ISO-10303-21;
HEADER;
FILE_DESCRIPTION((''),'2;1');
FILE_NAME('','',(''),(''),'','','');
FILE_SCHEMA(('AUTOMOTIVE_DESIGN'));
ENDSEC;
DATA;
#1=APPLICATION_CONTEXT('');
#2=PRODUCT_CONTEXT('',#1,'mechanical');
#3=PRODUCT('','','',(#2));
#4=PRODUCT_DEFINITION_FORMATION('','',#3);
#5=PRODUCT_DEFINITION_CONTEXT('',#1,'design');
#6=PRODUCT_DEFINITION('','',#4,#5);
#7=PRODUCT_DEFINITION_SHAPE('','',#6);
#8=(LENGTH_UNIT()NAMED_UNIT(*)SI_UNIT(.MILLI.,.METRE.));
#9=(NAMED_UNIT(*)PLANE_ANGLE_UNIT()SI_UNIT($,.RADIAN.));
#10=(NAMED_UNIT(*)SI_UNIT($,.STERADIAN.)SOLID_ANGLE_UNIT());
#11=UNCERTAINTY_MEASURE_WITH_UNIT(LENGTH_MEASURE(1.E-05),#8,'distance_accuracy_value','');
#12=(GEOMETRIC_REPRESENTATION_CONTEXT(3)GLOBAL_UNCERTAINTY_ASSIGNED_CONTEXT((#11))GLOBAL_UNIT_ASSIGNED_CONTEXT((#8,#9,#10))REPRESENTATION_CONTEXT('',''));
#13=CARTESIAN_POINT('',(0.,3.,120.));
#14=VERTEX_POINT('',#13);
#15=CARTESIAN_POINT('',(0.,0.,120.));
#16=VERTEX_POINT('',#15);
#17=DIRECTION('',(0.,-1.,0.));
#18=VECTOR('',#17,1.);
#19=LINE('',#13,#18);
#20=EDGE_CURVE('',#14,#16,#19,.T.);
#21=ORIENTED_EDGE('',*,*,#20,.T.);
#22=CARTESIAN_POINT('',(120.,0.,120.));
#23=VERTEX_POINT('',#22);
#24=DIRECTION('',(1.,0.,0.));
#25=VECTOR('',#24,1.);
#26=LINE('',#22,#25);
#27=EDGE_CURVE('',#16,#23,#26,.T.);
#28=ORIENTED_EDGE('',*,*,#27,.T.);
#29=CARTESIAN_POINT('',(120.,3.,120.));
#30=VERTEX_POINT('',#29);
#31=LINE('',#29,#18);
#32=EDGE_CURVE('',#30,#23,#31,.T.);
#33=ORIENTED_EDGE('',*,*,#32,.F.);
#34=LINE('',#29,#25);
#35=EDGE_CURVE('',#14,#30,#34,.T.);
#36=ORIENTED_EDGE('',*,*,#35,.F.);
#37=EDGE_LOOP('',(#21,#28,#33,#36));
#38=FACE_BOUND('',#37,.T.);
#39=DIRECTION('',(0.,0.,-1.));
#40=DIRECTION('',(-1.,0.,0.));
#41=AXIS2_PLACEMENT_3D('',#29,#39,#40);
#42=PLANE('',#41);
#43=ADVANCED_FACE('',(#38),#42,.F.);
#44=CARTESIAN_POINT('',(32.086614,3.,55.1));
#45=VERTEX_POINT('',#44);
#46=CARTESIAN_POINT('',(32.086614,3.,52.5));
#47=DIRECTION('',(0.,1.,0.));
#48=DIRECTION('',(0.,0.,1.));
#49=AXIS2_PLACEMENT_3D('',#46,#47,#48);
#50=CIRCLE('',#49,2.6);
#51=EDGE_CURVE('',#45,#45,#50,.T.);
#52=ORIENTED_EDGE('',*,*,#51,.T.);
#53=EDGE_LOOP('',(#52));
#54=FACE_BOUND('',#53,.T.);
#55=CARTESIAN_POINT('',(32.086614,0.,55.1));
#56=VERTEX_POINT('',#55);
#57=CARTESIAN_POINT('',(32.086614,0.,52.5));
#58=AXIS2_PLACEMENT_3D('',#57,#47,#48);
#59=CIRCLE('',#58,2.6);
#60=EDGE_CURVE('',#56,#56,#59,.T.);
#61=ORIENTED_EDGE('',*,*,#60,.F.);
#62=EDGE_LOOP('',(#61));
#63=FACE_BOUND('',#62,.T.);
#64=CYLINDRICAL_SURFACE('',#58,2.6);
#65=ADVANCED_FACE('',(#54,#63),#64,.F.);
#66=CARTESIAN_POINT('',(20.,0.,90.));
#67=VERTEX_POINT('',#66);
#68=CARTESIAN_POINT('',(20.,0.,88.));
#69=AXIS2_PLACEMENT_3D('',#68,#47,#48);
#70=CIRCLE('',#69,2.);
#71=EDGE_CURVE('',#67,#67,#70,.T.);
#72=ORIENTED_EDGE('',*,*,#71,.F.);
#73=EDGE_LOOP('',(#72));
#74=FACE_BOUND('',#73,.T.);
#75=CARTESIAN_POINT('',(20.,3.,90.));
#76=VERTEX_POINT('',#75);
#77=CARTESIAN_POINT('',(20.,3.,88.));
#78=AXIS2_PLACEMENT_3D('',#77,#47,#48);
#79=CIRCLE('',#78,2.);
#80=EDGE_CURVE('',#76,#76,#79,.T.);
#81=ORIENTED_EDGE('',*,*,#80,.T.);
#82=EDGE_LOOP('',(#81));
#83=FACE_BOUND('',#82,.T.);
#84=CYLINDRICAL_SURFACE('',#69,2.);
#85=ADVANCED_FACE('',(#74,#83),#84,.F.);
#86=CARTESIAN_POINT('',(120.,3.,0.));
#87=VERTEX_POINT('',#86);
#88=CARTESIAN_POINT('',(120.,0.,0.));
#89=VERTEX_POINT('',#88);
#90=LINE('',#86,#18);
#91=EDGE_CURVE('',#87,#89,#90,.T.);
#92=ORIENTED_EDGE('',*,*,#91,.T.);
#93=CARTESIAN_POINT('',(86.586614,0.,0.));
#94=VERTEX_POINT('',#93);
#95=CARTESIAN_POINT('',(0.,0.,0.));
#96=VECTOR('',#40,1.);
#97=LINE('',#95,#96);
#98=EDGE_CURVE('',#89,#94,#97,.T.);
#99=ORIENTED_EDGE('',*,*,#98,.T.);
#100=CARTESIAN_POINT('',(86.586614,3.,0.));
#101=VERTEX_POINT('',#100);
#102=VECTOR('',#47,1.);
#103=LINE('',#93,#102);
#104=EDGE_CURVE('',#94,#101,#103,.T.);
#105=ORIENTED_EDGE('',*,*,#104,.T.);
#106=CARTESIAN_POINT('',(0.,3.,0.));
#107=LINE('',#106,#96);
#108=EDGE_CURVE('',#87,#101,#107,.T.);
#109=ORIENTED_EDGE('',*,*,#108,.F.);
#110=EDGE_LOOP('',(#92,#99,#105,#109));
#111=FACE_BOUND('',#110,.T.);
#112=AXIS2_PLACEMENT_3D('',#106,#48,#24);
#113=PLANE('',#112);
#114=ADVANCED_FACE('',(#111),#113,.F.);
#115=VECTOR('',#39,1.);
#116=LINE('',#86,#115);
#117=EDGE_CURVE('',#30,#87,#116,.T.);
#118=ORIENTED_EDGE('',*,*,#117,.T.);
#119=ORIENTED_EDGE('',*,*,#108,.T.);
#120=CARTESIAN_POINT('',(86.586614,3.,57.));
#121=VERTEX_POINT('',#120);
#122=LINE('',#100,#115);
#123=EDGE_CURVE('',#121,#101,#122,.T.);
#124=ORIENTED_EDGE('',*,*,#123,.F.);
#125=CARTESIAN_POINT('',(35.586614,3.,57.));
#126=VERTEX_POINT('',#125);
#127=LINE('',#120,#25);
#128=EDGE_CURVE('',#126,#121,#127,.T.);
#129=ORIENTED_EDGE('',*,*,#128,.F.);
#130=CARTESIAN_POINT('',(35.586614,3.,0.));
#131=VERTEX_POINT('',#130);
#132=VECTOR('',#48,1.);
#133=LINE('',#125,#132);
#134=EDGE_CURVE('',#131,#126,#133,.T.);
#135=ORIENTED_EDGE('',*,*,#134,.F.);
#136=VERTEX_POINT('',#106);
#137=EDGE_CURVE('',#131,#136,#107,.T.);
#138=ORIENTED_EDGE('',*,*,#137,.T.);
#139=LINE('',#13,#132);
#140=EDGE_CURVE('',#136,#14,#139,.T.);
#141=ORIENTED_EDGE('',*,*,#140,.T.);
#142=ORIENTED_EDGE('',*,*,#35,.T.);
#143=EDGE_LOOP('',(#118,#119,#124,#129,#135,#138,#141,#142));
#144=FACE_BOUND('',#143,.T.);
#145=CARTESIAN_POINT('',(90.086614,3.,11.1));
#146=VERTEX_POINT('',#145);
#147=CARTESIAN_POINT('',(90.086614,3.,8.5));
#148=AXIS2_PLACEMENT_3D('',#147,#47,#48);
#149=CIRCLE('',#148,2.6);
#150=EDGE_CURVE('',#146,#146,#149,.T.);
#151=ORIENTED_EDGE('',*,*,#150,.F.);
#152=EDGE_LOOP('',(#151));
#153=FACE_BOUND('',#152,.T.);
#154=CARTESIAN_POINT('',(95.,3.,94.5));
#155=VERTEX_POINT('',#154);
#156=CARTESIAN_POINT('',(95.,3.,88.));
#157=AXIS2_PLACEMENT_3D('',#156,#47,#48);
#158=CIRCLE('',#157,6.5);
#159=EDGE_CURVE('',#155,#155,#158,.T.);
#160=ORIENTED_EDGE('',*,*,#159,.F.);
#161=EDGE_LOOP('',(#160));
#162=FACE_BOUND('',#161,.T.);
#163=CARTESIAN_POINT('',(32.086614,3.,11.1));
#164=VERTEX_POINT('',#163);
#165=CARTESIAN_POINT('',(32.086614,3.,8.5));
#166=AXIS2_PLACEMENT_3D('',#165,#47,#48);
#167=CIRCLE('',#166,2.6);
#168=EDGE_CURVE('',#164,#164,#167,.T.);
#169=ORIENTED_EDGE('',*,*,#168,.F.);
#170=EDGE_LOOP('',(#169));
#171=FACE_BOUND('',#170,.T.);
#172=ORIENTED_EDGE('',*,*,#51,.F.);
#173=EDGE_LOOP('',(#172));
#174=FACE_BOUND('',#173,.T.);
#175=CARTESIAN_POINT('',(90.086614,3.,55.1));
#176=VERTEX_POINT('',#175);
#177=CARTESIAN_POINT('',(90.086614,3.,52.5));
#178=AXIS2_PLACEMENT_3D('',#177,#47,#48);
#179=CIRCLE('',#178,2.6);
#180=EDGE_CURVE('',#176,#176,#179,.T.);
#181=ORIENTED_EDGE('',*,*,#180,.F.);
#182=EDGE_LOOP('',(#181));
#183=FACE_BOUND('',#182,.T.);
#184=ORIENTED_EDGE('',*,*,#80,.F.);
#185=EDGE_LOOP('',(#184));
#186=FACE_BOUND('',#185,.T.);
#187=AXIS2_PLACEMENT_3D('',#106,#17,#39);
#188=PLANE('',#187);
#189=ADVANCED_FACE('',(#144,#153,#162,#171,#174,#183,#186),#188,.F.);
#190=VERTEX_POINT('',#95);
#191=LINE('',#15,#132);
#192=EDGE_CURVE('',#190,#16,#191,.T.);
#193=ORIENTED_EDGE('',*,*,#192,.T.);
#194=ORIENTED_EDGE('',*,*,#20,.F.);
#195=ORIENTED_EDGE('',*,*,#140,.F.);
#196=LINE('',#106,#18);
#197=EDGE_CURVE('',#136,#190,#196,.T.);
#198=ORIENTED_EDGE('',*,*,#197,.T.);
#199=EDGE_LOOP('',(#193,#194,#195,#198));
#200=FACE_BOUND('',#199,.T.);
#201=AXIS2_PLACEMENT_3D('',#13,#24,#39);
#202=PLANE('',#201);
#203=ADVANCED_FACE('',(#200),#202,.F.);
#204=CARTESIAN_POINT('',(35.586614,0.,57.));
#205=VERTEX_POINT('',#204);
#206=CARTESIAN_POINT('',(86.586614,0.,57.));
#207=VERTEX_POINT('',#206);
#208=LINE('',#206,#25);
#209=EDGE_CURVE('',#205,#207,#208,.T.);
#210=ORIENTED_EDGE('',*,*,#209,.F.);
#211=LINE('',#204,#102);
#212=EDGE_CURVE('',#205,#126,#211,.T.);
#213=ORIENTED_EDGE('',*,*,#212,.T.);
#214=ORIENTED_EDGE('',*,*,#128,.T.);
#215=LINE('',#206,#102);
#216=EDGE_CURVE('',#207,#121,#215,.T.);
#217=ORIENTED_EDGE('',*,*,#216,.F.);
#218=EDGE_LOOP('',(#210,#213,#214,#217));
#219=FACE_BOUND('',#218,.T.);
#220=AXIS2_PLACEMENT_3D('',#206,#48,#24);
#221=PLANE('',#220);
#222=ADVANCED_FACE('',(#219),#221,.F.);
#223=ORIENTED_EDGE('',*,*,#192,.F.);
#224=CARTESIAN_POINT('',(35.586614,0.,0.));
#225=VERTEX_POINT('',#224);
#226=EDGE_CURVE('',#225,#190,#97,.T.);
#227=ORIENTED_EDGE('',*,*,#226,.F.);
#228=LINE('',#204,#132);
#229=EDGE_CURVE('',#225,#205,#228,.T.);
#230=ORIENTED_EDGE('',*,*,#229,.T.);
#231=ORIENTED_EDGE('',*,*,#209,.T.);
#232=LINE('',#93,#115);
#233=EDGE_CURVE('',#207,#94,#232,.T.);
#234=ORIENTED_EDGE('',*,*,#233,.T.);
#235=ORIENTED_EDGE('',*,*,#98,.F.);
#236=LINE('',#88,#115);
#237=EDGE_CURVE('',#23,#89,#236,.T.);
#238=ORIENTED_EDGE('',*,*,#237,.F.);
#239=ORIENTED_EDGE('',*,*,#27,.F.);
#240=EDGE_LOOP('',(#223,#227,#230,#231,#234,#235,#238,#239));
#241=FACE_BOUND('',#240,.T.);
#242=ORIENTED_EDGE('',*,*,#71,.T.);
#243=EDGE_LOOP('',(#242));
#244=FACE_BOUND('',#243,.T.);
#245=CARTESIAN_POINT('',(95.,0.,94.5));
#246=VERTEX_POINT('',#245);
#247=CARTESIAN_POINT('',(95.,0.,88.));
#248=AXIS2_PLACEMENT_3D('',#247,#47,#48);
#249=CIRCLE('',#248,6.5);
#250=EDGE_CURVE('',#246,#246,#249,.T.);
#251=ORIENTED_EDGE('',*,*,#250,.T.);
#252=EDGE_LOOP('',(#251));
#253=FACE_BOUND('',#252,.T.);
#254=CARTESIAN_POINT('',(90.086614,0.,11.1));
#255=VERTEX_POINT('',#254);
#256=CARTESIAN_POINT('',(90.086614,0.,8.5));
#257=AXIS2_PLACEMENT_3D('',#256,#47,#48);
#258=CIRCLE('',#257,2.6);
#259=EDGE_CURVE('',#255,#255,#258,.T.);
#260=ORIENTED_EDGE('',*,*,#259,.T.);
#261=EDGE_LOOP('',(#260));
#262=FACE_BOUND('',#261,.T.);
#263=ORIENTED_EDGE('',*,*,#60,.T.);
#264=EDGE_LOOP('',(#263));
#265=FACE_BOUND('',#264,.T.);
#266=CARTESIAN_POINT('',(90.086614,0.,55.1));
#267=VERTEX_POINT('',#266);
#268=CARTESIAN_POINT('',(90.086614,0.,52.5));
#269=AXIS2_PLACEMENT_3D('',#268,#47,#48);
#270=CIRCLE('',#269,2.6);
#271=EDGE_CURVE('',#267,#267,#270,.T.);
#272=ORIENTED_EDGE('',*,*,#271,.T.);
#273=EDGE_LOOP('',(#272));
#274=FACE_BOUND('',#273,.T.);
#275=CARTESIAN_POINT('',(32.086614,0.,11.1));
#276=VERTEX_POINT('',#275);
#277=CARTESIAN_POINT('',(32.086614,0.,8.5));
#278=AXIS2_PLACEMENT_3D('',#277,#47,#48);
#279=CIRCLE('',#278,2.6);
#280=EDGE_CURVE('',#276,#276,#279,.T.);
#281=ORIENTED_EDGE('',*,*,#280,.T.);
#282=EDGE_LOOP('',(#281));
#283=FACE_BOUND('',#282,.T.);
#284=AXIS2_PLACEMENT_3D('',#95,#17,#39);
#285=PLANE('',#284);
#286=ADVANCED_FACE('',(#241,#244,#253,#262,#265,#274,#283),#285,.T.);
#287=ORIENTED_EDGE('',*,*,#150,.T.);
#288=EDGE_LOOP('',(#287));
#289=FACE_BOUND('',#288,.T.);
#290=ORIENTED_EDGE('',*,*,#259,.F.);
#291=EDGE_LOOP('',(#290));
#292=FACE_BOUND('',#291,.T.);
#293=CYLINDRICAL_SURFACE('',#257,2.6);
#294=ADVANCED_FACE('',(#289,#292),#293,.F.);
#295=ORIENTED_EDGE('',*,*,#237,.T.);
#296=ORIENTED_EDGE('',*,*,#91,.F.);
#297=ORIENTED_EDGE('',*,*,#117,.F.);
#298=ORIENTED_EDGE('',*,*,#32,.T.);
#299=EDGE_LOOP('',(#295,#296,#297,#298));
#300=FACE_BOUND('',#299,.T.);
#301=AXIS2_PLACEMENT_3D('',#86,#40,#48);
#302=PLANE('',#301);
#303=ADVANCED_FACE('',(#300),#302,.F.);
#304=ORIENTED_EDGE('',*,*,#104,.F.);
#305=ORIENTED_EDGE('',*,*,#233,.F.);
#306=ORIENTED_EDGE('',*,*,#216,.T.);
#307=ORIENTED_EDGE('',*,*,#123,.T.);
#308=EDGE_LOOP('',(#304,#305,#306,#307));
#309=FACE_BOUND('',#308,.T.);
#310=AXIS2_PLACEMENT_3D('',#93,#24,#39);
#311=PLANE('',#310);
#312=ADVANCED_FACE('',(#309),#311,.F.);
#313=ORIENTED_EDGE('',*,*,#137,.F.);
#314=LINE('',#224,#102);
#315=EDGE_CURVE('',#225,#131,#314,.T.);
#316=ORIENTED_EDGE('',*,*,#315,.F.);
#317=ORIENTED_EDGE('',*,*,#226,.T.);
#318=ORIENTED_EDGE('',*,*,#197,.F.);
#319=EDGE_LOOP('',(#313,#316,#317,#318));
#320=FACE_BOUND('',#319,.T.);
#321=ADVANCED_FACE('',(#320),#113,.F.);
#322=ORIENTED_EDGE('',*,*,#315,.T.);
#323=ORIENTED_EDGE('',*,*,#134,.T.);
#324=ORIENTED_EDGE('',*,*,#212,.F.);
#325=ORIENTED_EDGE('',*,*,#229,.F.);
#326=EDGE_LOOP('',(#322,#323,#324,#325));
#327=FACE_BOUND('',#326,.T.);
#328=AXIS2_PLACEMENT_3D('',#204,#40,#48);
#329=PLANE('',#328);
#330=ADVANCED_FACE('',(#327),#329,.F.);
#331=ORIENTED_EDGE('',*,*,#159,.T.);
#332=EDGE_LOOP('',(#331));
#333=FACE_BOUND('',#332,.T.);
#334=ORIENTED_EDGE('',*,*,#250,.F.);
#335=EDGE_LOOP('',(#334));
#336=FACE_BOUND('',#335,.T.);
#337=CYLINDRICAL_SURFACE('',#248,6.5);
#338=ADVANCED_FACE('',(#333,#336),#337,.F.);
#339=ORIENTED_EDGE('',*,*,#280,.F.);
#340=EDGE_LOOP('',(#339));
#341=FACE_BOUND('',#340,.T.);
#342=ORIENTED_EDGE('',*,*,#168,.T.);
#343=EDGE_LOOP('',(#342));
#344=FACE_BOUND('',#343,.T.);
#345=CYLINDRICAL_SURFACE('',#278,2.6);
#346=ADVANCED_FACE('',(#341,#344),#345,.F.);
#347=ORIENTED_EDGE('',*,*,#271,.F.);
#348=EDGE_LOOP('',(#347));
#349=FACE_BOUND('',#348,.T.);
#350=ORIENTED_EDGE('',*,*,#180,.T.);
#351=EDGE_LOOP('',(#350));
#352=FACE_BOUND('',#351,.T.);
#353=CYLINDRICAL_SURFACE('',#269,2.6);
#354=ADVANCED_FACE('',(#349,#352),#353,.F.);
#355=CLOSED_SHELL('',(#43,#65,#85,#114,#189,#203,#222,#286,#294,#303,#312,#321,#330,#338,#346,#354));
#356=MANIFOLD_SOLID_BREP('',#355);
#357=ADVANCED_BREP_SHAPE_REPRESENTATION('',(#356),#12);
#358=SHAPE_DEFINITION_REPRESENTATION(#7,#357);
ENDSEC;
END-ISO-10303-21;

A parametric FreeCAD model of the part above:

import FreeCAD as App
import Part
import Sketcher

V = App.Vector

doc = App.newDocument("Part")
body = doc.addObject("PartDesign::Body", "Body")

# Sketch on XZ plane
sketch1 = body.newObject("Sketcher::SketchObject", "Sketch")
sketch1.AttachmentSupport = (doc.getObject("XZ_Plane"), [""])
sketch1.MapMode = "FlatFace"
sketch1.addGeometry(Part.LineSegment(V(0, 0, 0), V(0, 120, 0)), False)
sketch1.addGeometry(Part.LineSegment(V(0, 120, 0), V(120, 120, 0)), False)
sketch1.addGeometry(Part.LineSegment(V(120, 120, 0), V(120, 0, 0)), False)
sketch1.addGeometry(Part.LineSegment(V(120, 0, 0), V(0, 0, 0)), False)
sketch1.addConstraint(Sketcher.Constraint("Coincident", 0, 2, 1, 1))
sketch1.addConstraint(Sketcher.Constraint("Coincident", 1, 2, 2, 1))
sketch1.addConstraint(Sketcher.Constraint("Coincident", 2, 2, 3, 1))
sketch1.addConstraint(Sketcher.Constraint("Coincident", 3, 2, 0, 1))
sketch1.addConstraint(Sketcher.Constraint("Vertical", 0))
sketch1.addConstraint(Sketcher.Constraint("Horizontal", 1))
sketch1.addConstraint(Sketcher.Constraint("Vertical", 2))
sketch1.addConstraint(Sketcher.Constraint("Horizontal", 3))
sketch1.addConstraint(Sketcher.Constraint("Coincident", 3, 2, -1, 1))
sketch1.addConstraint(Sketcher.Constraint("Equal", 3, 0))
sketch1.addConstraint(Sketcher.Constraint("DistanceX", 1, 1, 1, 2, 120.0))
pad1 = body.newObject("PartDesign::Pad", "Pad")
pad1.Profile = sketch1
pad1.Length = 3
pad1.Reversed = True

# Sketch on XZ plane
sketch2 = body.newObject("Sketcher::SketchObject", "Sketch001")
sketch2.AttachmentSupport = (doc.getObject("XZ_Plane"), [""])
sketch2.MapMode = "FlatFace"
sketch2.AttachmentOffset = App.Placement(V(0, 0, -3), App.Rotation())
sketch2.addGeometry(Part.Circle(V(20, 88, 0), V(0, 0, 1), 2), False)
sketch2.addGeometry(Part.Circle(V(95, 88, 0), V(0, 0, 1), 6.5), False)
sketch2.addGeometry(Part.Circle(V(32.1, 8.5, 0), V(0, 0, 1), 2.6), False)
sketch2.addGeometry(Part.Circle(V(32.1, 52.5, 0), V(0, 0, 1), 2.6), False)
sketch2.addGeometry(Part.Circle(V(90.1, 8.5, 0), V(0, 0, 1), 2.6), False)
sketch2.addGeometry(Part.Circle(V(90.1, 52.5, 0), V(0, 0, 1), 2.6), False)
sketch2.addGeometry(Part.LineSegment(V(35.6, 0, 0), V(35.6, 57, 0)), False)
sketch2.addGeometry(Part.LineSegment(V(35.6, 57, 0), V(86.6, 57, 0)), False)
sketch2.addGeometry(Part.LineSegment(V(86.6, 57, 0), V(86.6, 0, 0)), False)
sketch2.addGeometry(Part.LineSegment(V(86.6, 0, 0), V(35.6, 0, 0)), False)
sketch2.addConstraint(Sketcher.Constraint("Coincident", 6, 2, 7, 1))
sketch2.addConstraint(Sketcher.Constraint("Coincident", 7, 2, 8, 1))
sketch2.addConstraint(Sketcher.Constraint("Coincident", 8, 2, 9, 1))
sketch2.addConstraint(Sketcher.Constraint("Coincident", 9, 2, 6, 1))
sketch2.addConstraint(Sketcher.Constraint("Vertical", 6))
sketch2.addConstraint(Sketcher.Constraint("Horizontal", 7))
sketch2.addConstraint(Sketcher.Constraint("Vertical", 8))
sketch2.addConstraint(Sketcher.Constraint("Horizontal", 9))
sketch2.addConstraint(Sketcher.Constraint("Equal", 2, 3))
sketch2.addConstraint(Sketcher.Constraint("Equal", 3, 4))
sketch2.addConstraint(Sketcher.Constraint("Equal", 4, 5))
sketch2.addConstraint(Sketcher.Constraint("PointOnObject", 8, 2, -1))
sketch2.addConstraint(Sketcher.Constraint("Horizontal", 0, 3, 1, 3))
sketch2.addConstraint(Sketcher.Constraint("Horizontal", 2, 3, 4, 3))
sketch2.addConstraint(Sketcher.Constraint("Horizontal", 3, 3, 5, 3))
sketch2.addConstraint(Sketcher.Constraint("Vertical", 2, 3, 3, 3))
sketch2.addConstraint(Sketcher.Constraint("Vertical", 4, 3, 5, 3))
sketch2.addConstraint(Sketcher.Constraint("Diameter", 0, 4.0))
sketch2.addConstraint(Sketcher.Constraint("Diameter", 1, 13.0))
sketch2.addConstraint(Sketcher.Constraint("Diameter", 2, 5.2))
sketch2.addConstraint(Sketcher.Constraint("DistanceX", 7, 1, 7, 2, 51.0))
sketch2.addConstraint(Sketcher.Constraint("DistanceY", 6, 1, 6, 2, 57.0))
sketch2.addConstraint(Sketcher.Constraint("DistanceX", -1, 1, 0, 3, 20.0))
sketch2.addConstraint(Sketcher.Constraint("DistanceY", -1, 1, 0, 3, 88.0))
sketch2.addConstraint(Sketcher.Constraint("DistanceX", -1, 1, 1, 3, 95.0))
sketch2.addConstraint(Sketcher.Constraint("DistanceY", 2, 3, 3, 3, 44.0))
sketch2.addConstraint(Sketcher.Constraint("DistanceX", 2, 3, 4, 3, 58.0))
sketch2.addConstraint(Sketcher.Constraint("DistanceY", -1, 1, 2, 3, 8.5))
sketch2.addConstraint(Sketcher.Constraint("DistanceX", 3, 3, 6, 2, 3.5))
sketch2.addConstraint(Sketcher.Constraint("DistanceX", -1, 1, 2, 3, 32.086614))
pocket1 = body.newObject("PartDesign::Pocket", "Pocket")
pocket1.Profile = sketch2
pocket1.Length = 3
pocket1.Reversed = True

doc.recompute()
